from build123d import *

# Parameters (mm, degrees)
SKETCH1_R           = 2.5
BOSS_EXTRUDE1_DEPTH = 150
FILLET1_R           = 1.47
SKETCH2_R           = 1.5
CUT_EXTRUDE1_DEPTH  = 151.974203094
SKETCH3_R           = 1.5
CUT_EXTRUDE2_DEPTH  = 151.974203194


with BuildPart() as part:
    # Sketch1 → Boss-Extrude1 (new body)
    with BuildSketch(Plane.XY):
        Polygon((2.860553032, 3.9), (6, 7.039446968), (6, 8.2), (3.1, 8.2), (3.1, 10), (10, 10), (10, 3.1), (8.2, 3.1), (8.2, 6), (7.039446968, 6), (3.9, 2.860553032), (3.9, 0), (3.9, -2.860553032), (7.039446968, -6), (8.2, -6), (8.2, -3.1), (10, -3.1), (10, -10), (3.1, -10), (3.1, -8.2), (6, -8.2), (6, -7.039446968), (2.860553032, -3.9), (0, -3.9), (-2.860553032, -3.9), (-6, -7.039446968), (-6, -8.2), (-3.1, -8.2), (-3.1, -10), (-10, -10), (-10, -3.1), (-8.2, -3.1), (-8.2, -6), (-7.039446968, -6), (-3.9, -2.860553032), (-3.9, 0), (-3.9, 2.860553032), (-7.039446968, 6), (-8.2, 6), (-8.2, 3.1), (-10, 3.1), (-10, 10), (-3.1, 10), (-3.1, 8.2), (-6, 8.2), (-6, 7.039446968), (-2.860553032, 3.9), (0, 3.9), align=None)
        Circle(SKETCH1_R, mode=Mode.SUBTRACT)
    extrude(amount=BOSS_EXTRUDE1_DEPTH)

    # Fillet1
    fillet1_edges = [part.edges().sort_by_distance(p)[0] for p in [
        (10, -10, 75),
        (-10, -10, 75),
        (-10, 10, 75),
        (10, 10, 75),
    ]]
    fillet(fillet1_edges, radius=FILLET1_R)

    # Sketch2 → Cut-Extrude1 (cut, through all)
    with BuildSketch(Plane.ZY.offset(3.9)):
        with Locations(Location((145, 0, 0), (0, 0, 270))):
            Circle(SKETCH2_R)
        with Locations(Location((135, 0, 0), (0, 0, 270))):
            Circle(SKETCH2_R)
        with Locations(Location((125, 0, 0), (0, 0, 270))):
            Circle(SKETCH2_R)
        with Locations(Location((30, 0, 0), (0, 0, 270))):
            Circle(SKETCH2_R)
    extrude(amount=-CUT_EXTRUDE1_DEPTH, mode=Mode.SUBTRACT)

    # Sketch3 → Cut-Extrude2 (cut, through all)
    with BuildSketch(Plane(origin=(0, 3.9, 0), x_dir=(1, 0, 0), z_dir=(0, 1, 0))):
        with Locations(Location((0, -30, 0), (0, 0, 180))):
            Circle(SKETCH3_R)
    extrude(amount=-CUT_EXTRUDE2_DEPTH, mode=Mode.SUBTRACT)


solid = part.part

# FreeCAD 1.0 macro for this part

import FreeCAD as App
import Part
import Sketcher
Q = App.Units.Quantity


def edges_at(feature, points):
    """Names of the edges that pass closest to the given points."""
    edges = feature.Shape.Edges
    near = lambda p: min(range(len(edges)), key=lambda i: edges[i].distToShape(Part.Vertex(*p))[0])
    return sorted({f"Edge{near(p) + 1}" for p in points})

doc = App.newDocument("Part")
params = doc.addObject("Spreadsheet::Sheet", "Params")
for row, (alias, value) in enumerate([
    ("sketch1_diameter", "5 mm"),
    ("sketch1_width", "2.9 mm"),
    ("sketch1_width2", "6.9 mm"),
    ("sketch1_width3", "1.8 mm"),
    ("pad1_length", "150 mm"),
    ("fillet_radius", "1.47 mm"),
    ("sketch2_diameter", "3 mm"),
    ("sketch3_diameter", "3 mm"),
], start=1):
    params.set(f"A{row}", alias)
    params.set(f"B{row}", "=" + value)
    params.setAlias(f"B{row}", alias)

body = doc.addObject("PartDesign::Body", "Body")

sketch1 = doc.addObject("Sketcher::SketchObject", "Sketch")
body.addObject(sketch1)
sketch1.AttachmentSupport = (doc.XY_Plane, [""])
sketch1.MapMode = "FlatFace"
sketch1.addGeometry([
    Part.LineSegment(App.Vector(6, 7.039447, 0), App.Vector(2.860553, 3.9, 0)),
    Part.LineSegment(App.Vector(2.860553, 3.9, 0), App.Vector(-2.860553, 3.9, 0)),
    Part.LineSegment(App.Vector(-2.860553, 3.9, 0), App.Vector(-6, 7.039447, 0)),
    Part.LineSegment(App.Vector(-6, 7.039447, 0), App.Vector(-6, 8.2, 0)),
    Part.LineSegment(App.Vector(-6, 8.2, 0), App.Vector(-3.1, 8.2, 0)),
    Part.LineSegment(App.Vector(-3.1, 8.2, 0), App.Vector(-3.1, 10, 0)),
    Part.LineSegment(App.Vector(-3.1, 10, 0), App.Vector(-10, 10, 0)),
    Part.LineSegment(App.Vector(-10, 10, 0), App.Vector(-10, 3.1, 0)),
    Part.LineSegment(App.Vector(-10, 3.1, 0), App.Vector(-8.2, 3.1, 0)),
    Part.LineSegment(App.Vector(-8.2, 3.1, 0), App.Vector(-8.2, 6, 0)),
    Part.LineSegment(App.Vector(-8.2, 6, 0), App.Vector(-7.039447, 6, 0)),
    Part.LineSegment(App.Vector(-7.039447, 6, 0), App.Vector(-3.9, 2.860553, 0)),
    Part.LineSegment(App.Vector(-3.9, 2.860553, 0), App.Vector(-3.9, -2.860553, 0)),
    Part.LineSegment(App.Vector(-3.9, -2.860553, 0), App.Vector(-7.039447, -6, 0)),
    Part.LineSegment(App.Vector(-7.039447, -6, 0), App.Vector(-8.2, -6, 0)),
    Part.LineSegment(App.Vector(-8.2, -6, 0), App.Vector(-8.2, -3.1, 0)),
    Part.LineSegment(App.Vector(-8.2, -3.1, 0), App.Vector(-10, -3.1, 0)),
    Part.LineSegment(App.Vector(-10, -3.1, 0), App.Vector(-10, -10, 0)),
    Part.LineSegment(App.Vector(-10, -10, 0), App.Vector(-3.1, -10, 0)),
    Part.LineSegment(App.Vector(-3.1, -10, 0), App.Vector(-3.1, -8.2, 0)),
    Part.LineSegment(App.Vector(-3.1, -8.2, 0), App.Vector(-6, -8.2, 0)),
    Part.LineSegment(App.Vector(-6, -8.2, 0), App.Vector(-6, -7.039447, 0)),
    Part.LineSegment(App.Vector(-6, -7.039447, 0), App.Vector(-2.860553, -3.9, 0)),
    Part.LineSegment(App.Vector(-2.860553, -3.9, 0), App.Vector(2.860553, -3.9, 0)),
    Part.LineSegment(App.Vector(2.860553, -3.9, 0), App.Vector(6, -7.039447, 0)),
    Part.LineSegment(App.Vector(6, -7.039447, 0), App.Vector(6, -8.2, 0)),
    Part.LineSegment(App.Vector(6, -8.2, 0), App.Vector(3.1, -8.2, 0)),
    Part.LineSegment(App.Vector(3.1, -8.2, 0), App.Vector(3.1, -10, 0)),
    Part.LineSegment(App.Vector(3.1, -10, 0), App.Vector(10, -10, 0)),
    Part.LineSegment(App.Vector(10, -10, 0), App.Vector(10, -3.1, 0)),
    Part.LineSegment(App.Vector(10, -3.1, 0), App.Vector(8.2, -3.1, 0)),
    Part.LineSegment(App.Vector(8.2, -3.1, 0), App.Vector(8.2, -6, 0)),
    Part.LineSegment(App.Vector(8.2, -6, 0), App.Vector(7.039447, -6, 0)),
    Part.LineSegment(App.Vector(7.039447, -6, 0), App.Vector(3.9, -2.860553, 0)),
    Part.LineSegment(App.Vector(3.9, -2.860553, 0), App.Vector(3.9, 2.860553, 0)),
    Part.LineSegment(App.Vector(3.9, 2.860553, 0), App.Vector(7.039447, 6, 0)),
    Part.LineSegment(App.Vector(7.039447, 6, 0), App.Vector(8.2, 6, 0)),
    Part.LineSegment(App.Vector(8.2, 6, 0), App.Vector(8.2, 3.1, 0)),
    Part.LineSegment(App.Vector(8.2, 3.1, 0), App.Vector(10, 3.1, 0)),
    Part.LineSegment(App.Vector(10, 3.1, 0), App.Vector(10, 10, 0)),
    Part.LineSegment(App.Vector(10, 10, 0), App.Vector(3.1, 10, 0)),
    Part.LineSegment(App.Vector(3.1, 10, 0), App.Vector(3.1, 8.2, 0)),
    Part.LineSegment(App.Vector(3.1, 8.2, 0), App.Vector(6, 8.2, 0)),
    Part.LineSegment(App.Vector(6, 8.2, 0), App.Vector(6, 7.039447, 0)),
    Part.Circle(App.Vector(0, 0, 0), App.Vector(0, 0, 1), 2.5),
], False)
sketch1.addConstraint([
    Sketcher.Constraint("Coincident", 0, 2, 1, 1),
    Sketcher.Constraint("Coincident", 1, 2, 2, 1),
    Sketcher.Constraint("Coincident", 2, 2, 3, 1),
    Sketcher.Constraint("Coincident", 3, 2, 4, 1),
    Sketcher.Constraint("Coincident", 4, 2, 5, 1),
    Sketcher.Constraint("Coincident", 5, 2, 6, 1),
    Sketcher.Constraint("Coincident", 6, 2, 7, 1),
    Sketcher.Constraint("Coincident", 7, 2, 8, 1),
    Sketcher.Constraint("Coincident", 8, 2, 9, 1),
    Sketcher.Constraint("Coincident", 9, 2, 10, 1),
    Sketcher.Constraint("Coincident", 10, 2, 11, 1),
    Sketcher.Constraint("Coincident", 11, 2, 12, 1),
    Sketcher.Constraint("Coincident", 12, 2, 13, 1),
    Sketcher.Constraint("Coincident", 13, 2, 14, 1),
    Sketcher.Constraint("Coincident", 14, 2, 15, 1),
    Sketcher.Constraint("Coincident", 15, 2, 16, 1),
    Sketcher.Constraint("Coincident", 16, 2, 17, 1),
    Sketcher.Constraint("Coincident", 17, 2, 18, 1),
    Sketcher.Constraint("Coincident", 18, 2, 19, 1),
    Sketcher.Constraint("Coincident", 19, 2, 20, 1),
    Sketcher.Constraint("Coincident", 20, 2, 21, 1),
    Sketcher.Constraint("Coincident", 21, 2, 22, 1),
    Sketcher.Constraint("Coincident", 22, 2, 23, 1),
    Sketcher.Constraint("Coincident", 23, 2, 24, 1),
    Sketcher.Constraint("Coincident", 24, 2, 25, 1),
    Sketcher.Constraint("Coincident", 25, 2, 26, 1),
    Sketcher.Constraint("Coincident", 26, 2, 27, 1),
    Sketcher.Constraint("Coincident", 27, 2, 28, 1),
    Sketcher.Constraint("Coincident", 28, 2, 29, 1),
    Sketcher.Constraint("Coincident", 29, 2, 30, 1),
    Sketcher.Constraint("Coincident", 30, 2, 31, 1),
    Sketcher.Constraint("Coincident", 31, 2, 32, 1),
    Sketcher.Constraint("Coincident", 32, 2, 33, 1),
    Sketcher.Constraint("Coincident", 33, 2, 34, 1),
    Sketcher.Constraint("Coincident", 34, 2, 35, 1),
    Sketcher.Constraint("Coincident", 35, 2, 36, 1),
    Sketcher.Constraint("Coincident", 36, 2, 37, 1),
    Sketcher.Constraint("Coincident", 37, 2, 38, 1),
    Sketcher.Constraint("Coincident", 38, 2, 39, 1),
    Sketcher.Constraint("Coincident", 39, 2, 40, 1),
    Sketcher.Constraint("Coincident", 40, 2, 41, 1),
    Sketcher.Constraint("Coincident", 41, 2, 42, 1),
    Sketcher.Constraint("Coincident", 42, 2, 43, 1),
    Sketcher.Constraint("Coincident", 43, 2, 0, 1),
    Sketcher.Constraint("Horizontal", 1),
    Sketcher.Constraint("Vertical", 3),
    Sketcher.Constraint("Horizontal", 4),
    Sketcher.Constraint("Vertical", 5),
    Sketcher.Constraint("Horizontal", 6),
    Sketcher.Constraint("Vertical", 7),
    Sketcher.Constraint("Horizontal", 8),
    Sketcher.Constraint("Vertical", 9),
    Sketcher.Constraint("Horizontal", 10),
    Sketcher.Constraint("Vertical", 12),
    Sketcher.Constraint("Horizontal", 14),
    Sketcher.Constraint("Vertical", 15),
    Sketcher.Constraint("Horizontal", 16),
    Sketcher.Constraint("Vertical", 17),
    Sketcher.Constraint("Horizontal", 18),
    Sketcher.Constraint("Vertical", 19),
    Sketcher.Constraint("Horizontal", 20),
    Sketcher.Constraint("Vertical", 21),
    Sketcher.Constraint("Horizontal", 23),
    Sketcher.Constraint("Vertical", 25),
    Sketcher.Constraint("Horizontal", 26),
    Sketcher.Constraint("Vertical", 27),
    Sketcher.Constraint("Horizontal", 28),
    Sketcher.Constraint("Vertical", 29),
    Sketcher.Constraint("Horizontal", 30),
    Sketcher.Constraint("Vertical", 31),
    Sketcher.Constraint("Horizontal", 32),
    Sketcher.Constraint("Vertical", 34),
    Sketcher.Constraint("Horizontal", 36),
    Sketcher.Constraint("Vertical", 37),
    Sketcher.Constraint("Horizontal", 38),
    Sketcher.Constraint("Vertical", 39),
    Sketcher.Constraint("Horizontal", 40),
    Sketcher.Constraint("Vertical", 41),
    Sketcher.Constraint("Horizontal", 42),
    Sketcher.Constraint("Vertical", 43),
    Sketcher.Constraint("Coincident", 44, 3, -1, 1),
    Sketcher.Constraint("Symmetric", 0, 2, 22, 2, -1, 1),
    Sketcher.Constraint("Symmetric", 2, 2, 24, 2, -1, 1),
    Sketcher.Constraint("Symmetric", 4, 2, 26, 2, -1, 1),
    Sketcher.Constraint("Symmetric", 6, 2, 28, 2, -1, 1),
    Sketcher.Constraint("Symmetric", 8, 2, 30, 2, -1, 1),
    Sketcher.Constraint("Symmetric", 10, 2, 32, 2, -1, 1),
    Sketcher.Constraint("Symmetric", 11, 2, 33, 2, -1, 1),
    Sketcher.Constraint("Symmetric", 13, 2, 35, 2, -1, 1),
    Sketcher.Constraint("Symmetric", 15, 2, 37, 2, -1, 1),
    Sketcher.Constraint("Symmetric", 17, 2, 39, 2, -1, 1),
    Sketcher.Constraint("Symmetric", 19, 2, 41, 2, -1, 1),
    Sketcher.Constraint("Symmetric", 21, 2, 43, 2, -1, 1),
    Sketcher.Constraint("Symmetric", 21, 2, 24, 2, -2),
    Sketcher.Constraint("Symmetric", 19, 2, 26, 2, -2),
    Sketcher.Constraint("Symmetric", 17, 2, 28, 2, -2),
    Sketcher.Constraint("Symmetric", 15, 2, 30, 2, -2),
    Sketcher.Constraint("Symmetric", 13, 2, 32, 2, -2),
    Sketcher.Constraint("Perpendicular", 0, 2),
    Sketcher.Constraint("Parallel", 2, 11),
    Sketcher.Constraint("Perpendicular", 11, 13),
    Sketcher.Constraint("Perpendicular", 22, 24),
    Sketcher.Constraint("Perpendicular", 33, 35),
    Sketcher.Constraint("Horizontal", 12, 2, 33, 2),
    Sketcher.Constraint("Equal", 36, 3),
    Sketcher.Constraint("Equal", 38, 5),
    Sketcher.Constraint("Equal", 40, 7),
    Sketcher.Constraint("Equal", 42, 9),
    Sketcher.Constraint("Equal", 23, 12),
    Sketcher.Constraint("Equal", 2, 11),
    Sketcher.Constraint("Diameter", 44, Q("5 mm")),
    Sketcher.Constraint("DistanceX", 4, 1, 4, 2, Q("2.9 mm")),
    Sketcher.Constraint("DistanceX", 6, 2, 6, 1, Q("6.9 mm")),
    Sketcher.Constraint("DistanceX", 8, 1, 8, 2, Q("1.8 mm")),
    Sketcher.Constraint("DistanceX", 2, 2, -1, 1, Q("6 mm")),
    Sketcher.Constraint("DistanceY", -1, 1, 0, 2, Q("3.9 mm")),
    Sketcher.Constraint("Distance", 0, Q("4.439848 mm")),
])
sketch1.setExpression("Constraints[110]", "Params.sketch1_diameter")
sketch1.setExpression("Constraints[111]", "Params.sketch1_width")
sketch1.setExpression("Constraints[112]", "Params.sketch1_width2")
sketch1.setExpression("Constraints[113]", "Params.sketch1_width3")
pad1 = doc.addObject("PartDesign::Pad", "Pad")
body.addObject(pad1)
pad1.Profile = sketch1
pad1.setExpression("Length", "Params.pad1_length")
doc.recompute()

fillet = doc.addObject("PartDesign::Fillet", "Fillet")
body.addObject(fillet)
fillet.Base = (pad1, edges_at(pad1, [
    (10, -10, 75),
    (-10, -10, 75),
    (-10, 10, 75),
    (10, 10, 75),
]))
fillet.setExpression("Radius", "Params.fillet_radius")

sketch2 = doc.addObject("Sketcher::SketchObject", "Sketch001")
body.addObject(sketch2)
sketch2.AttachmentSupport = (doc.YZ_Plane, [""])
sketch2.MapMode = "FlatFace"
sketch2.AttachmentOffset = App.Placement(App.Vector(0, 0, -3.9), App.Rotation())
sketch2.addGeometry([
    Part.Circle(App.Vector(0, 145, 0), App.Vector(0, 0, 1), 1.5),
    Part.Circle(App.Vector(0, 135, 0), App.Vector(0, 0, 1), 1.5),
    Part.Circle(App.Vector(0, 125, 0), App.Vector(0, 0, 1), 1.5),
    Part.Circle(App.Vector(0, 30, 0), App.Vector(0, 0, 1), 1.5),
], False)
sketch2.addConstraint([
    Sketcher.Constraint("Equal", 0, 1),
    Sketcher.Constraint("Equal", 1, 2),
    Sketcher.Constraint("Equal", 2, 3),
    Sketcher.Constraint("PointOnObject", 0, 3, -2),
    Sketcher.Constraint("PointOnObject", 1, 3, -2),
    Sketcher.Constraint("PointOnObject", 2, 3, -2),
    Sketcher.Constraint("PointOnObject", 3, 3, -2),
    Sketcher.Constraint("Diameter", 0, Q("3 mm")),
    Sketcher.Constraint("DistanceY", -1, 1, 0, 3, Q("145 mm")),
    Sketcher.Constraint("DistanceY", -1, 1, 1, 3, Q("135 mm")),
    Sketcher.Constraint("DistanceY", -1, 1, 2, 3, Q("125 mm")),
    Sketcher.Constraint("DistanceY", -1, 1, 3, 3, Q("30 mm")),
])
sketch2.setExpression("Constraints[7]", "Params.sketch2_diameter")
pocket1 = doc.addObject("PartDesign::Pocket", "Pocket")
body.addObject(pocket1)
pocket1.Profile = sketch2
pocket1.Type = "ThroughAll"
pocket1.Reversed = True

sketch3 = doc.addObject("Sketcher::SketchObject", "Sketch002")
body.addObject(sketch3)
sketch3.AttachmentSupport = (doc.XZ_Plane, [""])
sketch3.MapMode = "FlatFace"
sketch3.AttachmentOffset = App.Placement(App.Vector(0, 0, -3.9), App.Rotation())
sketch3.addGeometry(Part.Circle(App.Vector(0, 30, 0), App.Vector(0, 0, 1), 1.5), False)
sketch3.addConstraint([
    Sketcher.Constraint("PointOnObject", 0, 3, -2),
    Sketcher.Constraint("Diameter", 0, Q("3 mm")),
    Sketcher.Constraint("DistanceY", -1, 1, 0, 3, Q("30 mm")),
])
sketch3.setExpression("Constraints[1]", "Params.sketch3_diameter")
pocket2 = doc.addObject("PartDesign::Pocket", "Pocket001")
body.addObject(pocket2)
pocket2.Profile = sketch3
pocket2.Type = "ThroughAll"
pocket2.Reversed = True

doc.recompute()
